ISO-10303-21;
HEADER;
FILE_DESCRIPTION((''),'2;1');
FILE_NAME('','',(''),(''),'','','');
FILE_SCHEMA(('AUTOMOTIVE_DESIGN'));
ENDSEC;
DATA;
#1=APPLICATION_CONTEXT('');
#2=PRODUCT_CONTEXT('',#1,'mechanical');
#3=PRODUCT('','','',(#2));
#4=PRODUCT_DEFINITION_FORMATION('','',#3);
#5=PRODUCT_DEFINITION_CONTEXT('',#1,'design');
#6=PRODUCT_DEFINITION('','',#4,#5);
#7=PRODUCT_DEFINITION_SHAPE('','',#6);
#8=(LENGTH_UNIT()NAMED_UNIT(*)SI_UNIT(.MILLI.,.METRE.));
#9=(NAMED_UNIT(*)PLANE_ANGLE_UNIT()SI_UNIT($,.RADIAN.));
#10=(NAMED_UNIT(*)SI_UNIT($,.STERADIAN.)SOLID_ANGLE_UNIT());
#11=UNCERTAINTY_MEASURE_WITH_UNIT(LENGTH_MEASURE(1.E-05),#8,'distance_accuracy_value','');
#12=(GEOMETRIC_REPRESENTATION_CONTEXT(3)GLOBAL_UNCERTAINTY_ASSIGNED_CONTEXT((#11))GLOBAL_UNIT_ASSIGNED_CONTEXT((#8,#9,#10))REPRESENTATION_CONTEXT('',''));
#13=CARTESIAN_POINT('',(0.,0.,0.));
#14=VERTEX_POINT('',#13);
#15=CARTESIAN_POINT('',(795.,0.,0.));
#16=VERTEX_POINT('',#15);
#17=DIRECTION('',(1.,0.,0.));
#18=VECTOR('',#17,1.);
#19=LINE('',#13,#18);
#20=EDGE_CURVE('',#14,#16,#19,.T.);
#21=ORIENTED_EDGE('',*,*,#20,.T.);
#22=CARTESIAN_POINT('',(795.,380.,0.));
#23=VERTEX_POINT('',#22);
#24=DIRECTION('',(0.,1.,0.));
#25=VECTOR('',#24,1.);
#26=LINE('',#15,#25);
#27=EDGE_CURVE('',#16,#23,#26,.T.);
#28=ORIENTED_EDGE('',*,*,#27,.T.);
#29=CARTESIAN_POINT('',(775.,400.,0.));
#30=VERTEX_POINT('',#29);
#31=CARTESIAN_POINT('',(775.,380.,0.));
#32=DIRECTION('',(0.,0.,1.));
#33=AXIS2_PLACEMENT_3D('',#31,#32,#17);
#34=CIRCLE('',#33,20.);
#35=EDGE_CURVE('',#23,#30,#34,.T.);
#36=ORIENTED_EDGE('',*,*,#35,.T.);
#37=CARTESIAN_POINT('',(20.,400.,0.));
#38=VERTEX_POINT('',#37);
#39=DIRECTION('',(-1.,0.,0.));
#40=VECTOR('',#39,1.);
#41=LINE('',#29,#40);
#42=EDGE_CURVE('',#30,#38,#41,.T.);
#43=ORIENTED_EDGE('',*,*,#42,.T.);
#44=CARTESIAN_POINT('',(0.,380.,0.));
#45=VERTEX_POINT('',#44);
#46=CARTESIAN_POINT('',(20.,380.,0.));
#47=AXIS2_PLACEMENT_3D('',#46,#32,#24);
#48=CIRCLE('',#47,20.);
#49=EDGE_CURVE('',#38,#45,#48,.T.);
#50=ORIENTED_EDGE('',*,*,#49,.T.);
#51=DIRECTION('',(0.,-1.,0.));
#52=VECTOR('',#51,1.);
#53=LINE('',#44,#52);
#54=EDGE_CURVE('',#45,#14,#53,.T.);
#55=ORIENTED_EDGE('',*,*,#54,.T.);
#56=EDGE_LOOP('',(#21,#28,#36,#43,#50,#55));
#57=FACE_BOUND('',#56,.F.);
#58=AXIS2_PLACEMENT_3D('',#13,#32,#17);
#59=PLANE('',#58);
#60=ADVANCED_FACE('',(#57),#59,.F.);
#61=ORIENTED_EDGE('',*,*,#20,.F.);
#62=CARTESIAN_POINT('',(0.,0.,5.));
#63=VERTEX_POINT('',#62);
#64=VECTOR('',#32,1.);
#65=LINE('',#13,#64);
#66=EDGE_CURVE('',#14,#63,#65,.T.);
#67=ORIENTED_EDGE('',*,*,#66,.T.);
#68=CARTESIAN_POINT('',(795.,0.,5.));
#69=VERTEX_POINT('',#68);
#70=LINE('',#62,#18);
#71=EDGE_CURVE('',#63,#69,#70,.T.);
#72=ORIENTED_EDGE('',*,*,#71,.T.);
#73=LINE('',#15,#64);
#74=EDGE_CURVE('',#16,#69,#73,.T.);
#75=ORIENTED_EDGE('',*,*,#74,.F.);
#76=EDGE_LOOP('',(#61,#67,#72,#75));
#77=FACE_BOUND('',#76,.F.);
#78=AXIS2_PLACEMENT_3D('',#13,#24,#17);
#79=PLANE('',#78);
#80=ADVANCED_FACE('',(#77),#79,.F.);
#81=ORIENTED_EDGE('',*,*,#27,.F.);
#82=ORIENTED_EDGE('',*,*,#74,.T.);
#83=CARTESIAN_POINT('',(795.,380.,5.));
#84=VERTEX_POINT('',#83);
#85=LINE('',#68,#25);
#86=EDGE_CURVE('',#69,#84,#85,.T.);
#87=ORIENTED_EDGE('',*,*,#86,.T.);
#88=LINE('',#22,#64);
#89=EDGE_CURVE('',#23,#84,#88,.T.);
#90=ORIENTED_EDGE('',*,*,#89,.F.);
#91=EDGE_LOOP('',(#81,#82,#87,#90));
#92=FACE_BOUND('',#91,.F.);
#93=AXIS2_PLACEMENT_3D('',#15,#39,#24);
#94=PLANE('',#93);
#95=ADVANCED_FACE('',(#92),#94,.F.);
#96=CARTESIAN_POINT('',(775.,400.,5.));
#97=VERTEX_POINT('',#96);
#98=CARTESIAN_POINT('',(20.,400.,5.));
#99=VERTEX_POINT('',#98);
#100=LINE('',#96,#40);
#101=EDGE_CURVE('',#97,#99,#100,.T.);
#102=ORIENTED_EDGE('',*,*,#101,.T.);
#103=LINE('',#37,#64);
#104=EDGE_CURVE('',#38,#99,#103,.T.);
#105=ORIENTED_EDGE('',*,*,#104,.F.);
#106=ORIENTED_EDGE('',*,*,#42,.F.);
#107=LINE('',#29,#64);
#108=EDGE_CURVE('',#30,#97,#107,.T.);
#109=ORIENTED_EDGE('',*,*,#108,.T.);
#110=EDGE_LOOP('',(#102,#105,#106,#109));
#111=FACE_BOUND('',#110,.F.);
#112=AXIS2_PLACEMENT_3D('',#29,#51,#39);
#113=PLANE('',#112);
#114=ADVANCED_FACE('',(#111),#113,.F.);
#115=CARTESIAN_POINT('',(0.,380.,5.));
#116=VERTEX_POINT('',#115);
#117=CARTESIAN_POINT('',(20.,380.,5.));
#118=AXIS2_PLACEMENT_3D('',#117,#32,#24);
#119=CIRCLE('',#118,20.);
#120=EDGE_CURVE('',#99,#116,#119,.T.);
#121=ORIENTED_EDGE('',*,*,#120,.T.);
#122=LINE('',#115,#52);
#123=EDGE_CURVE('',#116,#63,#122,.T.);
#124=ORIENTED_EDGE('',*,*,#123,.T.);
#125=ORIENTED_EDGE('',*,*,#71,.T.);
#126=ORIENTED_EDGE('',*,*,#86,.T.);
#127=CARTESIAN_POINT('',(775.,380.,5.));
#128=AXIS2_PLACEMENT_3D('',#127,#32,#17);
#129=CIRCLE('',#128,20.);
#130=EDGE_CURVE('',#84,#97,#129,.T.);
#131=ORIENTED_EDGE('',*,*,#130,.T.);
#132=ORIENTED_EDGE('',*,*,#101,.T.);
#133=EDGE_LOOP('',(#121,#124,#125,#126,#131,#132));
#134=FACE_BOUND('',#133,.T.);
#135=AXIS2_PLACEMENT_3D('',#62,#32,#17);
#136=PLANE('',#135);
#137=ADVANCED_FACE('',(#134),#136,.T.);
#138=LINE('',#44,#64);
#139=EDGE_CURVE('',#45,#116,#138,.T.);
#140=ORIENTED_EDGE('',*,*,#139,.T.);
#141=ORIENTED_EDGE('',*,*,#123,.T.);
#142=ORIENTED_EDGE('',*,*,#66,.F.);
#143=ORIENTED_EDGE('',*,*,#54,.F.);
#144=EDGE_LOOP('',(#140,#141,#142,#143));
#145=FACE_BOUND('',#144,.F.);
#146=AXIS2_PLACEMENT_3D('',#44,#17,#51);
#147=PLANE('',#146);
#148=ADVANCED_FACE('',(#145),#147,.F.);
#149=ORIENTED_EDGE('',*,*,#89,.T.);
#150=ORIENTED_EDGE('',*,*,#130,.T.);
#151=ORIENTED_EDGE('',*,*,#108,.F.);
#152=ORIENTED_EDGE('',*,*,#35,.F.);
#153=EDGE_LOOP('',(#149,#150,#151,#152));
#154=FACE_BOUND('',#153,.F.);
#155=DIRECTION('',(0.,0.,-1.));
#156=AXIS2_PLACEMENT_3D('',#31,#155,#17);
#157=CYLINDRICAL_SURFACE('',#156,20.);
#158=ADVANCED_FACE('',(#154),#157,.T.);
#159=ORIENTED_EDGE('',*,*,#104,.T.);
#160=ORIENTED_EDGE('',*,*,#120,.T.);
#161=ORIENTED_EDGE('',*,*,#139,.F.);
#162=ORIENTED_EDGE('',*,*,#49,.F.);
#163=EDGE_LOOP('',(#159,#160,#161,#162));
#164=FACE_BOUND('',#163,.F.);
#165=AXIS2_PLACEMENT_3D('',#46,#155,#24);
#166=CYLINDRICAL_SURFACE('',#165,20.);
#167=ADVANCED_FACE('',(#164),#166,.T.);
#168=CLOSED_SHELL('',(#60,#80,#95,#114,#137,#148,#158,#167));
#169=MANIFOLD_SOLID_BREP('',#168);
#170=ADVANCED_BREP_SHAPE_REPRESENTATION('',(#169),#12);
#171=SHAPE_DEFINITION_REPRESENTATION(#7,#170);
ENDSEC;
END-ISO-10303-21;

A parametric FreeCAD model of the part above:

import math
import FreeCAD as App
import Part
import Sketcher

doc = App.newDocument("Part")
body = doc.addObject("PartDesign::Body", "Body")

# Sketch on XY plane
sketch1 = body.newObject("Sketcher::SketchObject", "Sketch")
sketch1.AttachmentSupport = (doc.getObject("XY_Plane"), [""])
sketch1.MapMode = "FlatFace"
sketch1.addGeometry(Part.LineSegment(App.Vector(0, 380, 0), App.Vector(0, 0, 0)), False)
sketch1.addGeometry(Part.LineSegment(App.Vector(0, 0, 0), App.Vector(795, 0, 0)), False)
sketch1.addGeometry(Part.LineSegment(App.Vector(795, 0, 0), App.Vector(795, 380, 0)), False)
sketch1.addGeometry(Part.ArcOfCircle(Part.Circle(App.Vector(775, 380, 0), App.Vector(0, 0, 1), 20), math.radians(0), math.radians(90)), False)
sketch1.addGeometry(Part.LineSegment(App.Vector(775, 400, 0), App.Vector(20, 400, 0)), False)
sketch1.addGeometry(Part.ArcOfCircle(Part.Circle(App.Vector(20, 380, 0), App.Vector(0, 0, 1), 20), math.radians(90), math.radians(180)), False)
sketch1.addConstraint(Sketcher.Constraint("Coincident", 0, 2, 1, 1))
sketch1.addConstraint(Sketcher.Constraint("Coincident", 1, 2, 2, 1))
sketch1.addConstraint(Sketcher.Constraint("Tangent", 2, 2, 3, 1))
sketch1.addConstraint(Sketcher.Constraint("Tangent", 3, 2, 4, 1))
sketch1.addConstraint(Sketcher.Constraint("Tangent", 4, 2, 5, 1))
sketch1.addConstraint(Sketcher.Constraint("Tangent", 5, 2, 0, 1))
sketch1.addConstraint(Sketcher.Constraint("Vertical", 0))
sketch1.addConstraint(Sketcher.Constraint("Horizontal", 1))
sketch1.addConstraint(Sketcher.Constraint("Vertical", 2))
sketch1.addConstraint(Sketcher.Constraint("Horizontal", 4))
sketch1.addConstraint(Sketcher.Constraint("Coincident", 0, 2, -1, 1))
sketch1.addConstraint(Sketcher.Constraint("Equal", 3, 5))
sketch1.addConstraint(Sketcher.Constraint("Radius", 3, 20.0))
sketch1.addConstraint(Sketcher.Constraint("DistanceX", 1, 1, 1, 2, 795.0))
sketch1.addConstraint(Sketcher.Constraint("DistanceY", -1, 1, 3, 2, 400.0))
pad1 = body.newObject("PartDesign::Pad", "Pad")
pad1.Profile = sketch1
pad1.Length = 5

doc.recompute()
